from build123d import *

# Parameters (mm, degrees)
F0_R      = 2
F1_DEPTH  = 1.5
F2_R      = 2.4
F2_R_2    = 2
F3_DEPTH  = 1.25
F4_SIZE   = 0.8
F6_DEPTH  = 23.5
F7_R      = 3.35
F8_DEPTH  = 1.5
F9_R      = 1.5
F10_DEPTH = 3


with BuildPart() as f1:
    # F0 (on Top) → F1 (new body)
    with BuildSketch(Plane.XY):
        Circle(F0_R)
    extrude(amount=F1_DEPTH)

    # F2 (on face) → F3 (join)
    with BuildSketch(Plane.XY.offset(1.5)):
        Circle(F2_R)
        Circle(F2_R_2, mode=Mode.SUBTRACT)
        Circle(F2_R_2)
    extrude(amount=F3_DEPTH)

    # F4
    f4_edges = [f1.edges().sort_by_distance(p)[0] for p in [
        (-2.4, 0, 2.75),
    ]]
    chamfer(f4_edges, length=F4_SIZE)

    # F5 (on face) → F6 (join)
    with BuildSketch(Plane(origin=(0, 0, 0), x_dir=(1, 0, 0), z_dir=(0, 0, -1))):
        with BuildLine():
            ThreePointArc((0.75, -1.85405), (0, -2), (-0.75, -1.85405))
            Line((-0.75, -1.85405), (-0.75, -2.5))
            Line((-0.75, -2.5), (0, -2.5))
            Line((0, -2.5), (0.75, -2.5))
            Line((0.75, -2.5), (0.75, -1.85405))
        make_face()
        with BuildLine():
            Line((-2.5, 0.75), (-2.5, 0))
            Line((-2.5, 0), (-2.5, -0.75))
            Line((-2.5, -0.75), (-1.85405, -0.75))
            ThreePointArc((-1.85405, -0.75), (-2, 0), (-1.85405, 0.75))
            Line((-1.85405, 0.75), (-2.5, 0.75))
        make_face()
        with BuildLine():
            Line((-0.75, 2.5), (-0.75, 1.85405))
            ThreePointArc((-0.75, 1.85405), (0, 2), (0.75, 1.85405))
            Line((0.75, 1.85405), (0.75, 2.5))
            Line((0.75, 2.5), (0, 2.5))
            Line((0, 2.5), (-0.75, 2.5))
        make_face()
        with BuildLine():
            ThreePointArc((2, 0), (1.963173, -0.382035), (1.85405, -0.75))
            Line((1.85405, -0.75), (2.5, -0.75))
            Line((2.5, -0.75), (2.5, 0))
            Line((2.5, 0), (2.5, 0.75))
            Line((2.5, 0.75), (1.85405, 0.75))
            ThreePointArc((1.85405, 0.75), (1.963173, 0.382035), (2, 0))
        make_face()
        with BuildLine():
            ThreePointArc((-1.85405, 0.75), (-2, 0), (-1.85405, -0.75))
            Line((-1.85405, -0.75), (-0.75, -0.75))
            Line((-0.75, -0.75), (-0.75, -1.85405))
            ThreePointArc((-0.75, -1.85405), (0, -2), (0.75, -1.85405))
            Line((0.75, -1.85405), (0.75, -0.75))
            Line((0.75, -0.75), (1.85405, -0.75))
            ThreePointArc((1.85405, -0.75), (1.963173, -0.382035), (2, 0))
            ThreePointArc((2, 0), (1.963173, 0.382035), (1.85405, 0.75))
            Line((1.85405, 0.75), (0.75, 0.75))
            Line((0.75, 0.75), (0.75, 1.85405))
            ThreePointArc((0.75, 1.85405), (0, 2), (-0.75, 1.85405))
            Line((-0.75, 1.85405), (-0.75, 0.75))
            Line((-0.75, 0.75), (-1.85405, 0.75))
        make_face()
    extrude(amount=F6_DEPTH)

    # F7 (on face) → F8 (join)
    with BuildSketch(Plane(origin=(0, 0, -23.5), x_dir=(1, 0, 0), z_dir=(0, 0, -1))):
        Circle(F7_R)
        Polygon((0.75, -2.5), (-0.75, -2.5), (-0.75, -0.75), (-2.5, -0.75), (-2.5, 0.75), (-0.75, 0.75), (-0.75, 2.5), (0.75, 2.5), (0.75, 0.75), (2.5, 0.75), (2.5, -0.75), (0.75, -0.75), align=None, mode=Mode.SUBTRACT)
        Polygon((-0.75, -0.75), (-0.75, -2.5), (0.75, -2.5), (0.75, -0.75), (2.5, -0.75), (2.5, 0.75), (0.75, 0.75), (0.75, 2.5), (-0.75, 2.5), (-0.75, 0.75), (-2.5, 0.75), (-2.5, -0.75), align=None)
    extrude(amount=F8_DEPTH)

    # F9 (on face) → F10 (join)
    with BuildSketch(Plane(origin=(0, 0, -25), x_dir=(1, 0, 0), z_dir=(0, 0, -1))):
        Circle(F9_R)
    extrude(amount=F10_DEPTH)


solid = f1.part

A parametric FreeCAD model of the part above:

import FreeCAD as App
import Part
import Sketcher

V = App.Vector
Q = App.Units.Quantity


def edges_at(feature, points):
    """Names of the edges that pass closest to the given points."""
    edges = feature.Shape.Edges
    near = lambda p: min(range(len(edges)), key=lambda i: edges[i].distToShape(Part.Vertex(*p))[0])
    return sorted({f"Edge{near(p) + 1}" for p in points})


def add_polygon(sketch, points):
    """Adds a closed chain of lines whose ends are joined by coincident constraints."""
    first, n = sketch.GeometryCount, len(points)
    for a, b in zip(points, points[1:] + points[:1]):
        sketch.addGeometry(Part.LineSegment(App.Vector(*a, 0), App.Vector(*b, 0)), False)
    for i in range(n):
        sketch.addConstraint(Sketcher.Constraint("Coincident", first + i, 2, first + (i + 1) % n, 1))

doc = App.newDocument("Part")
body = doc.addObject("PartDesign::Body", "Body")

# Sketch on XY plane
sketch1 = body.newObject("Sketcher::SketchObject", "Sketch")
sketch1.AttachmentSupport = (doc.getObject("XY_Plane"), [""])
sketch1.MapMode = "FlatFace"
sketch1.addGeometry(Part.Circle(V(0, 0, 0), V(0, 0, 1), 2), False)
sketch1.addConstraint(Sketcher.Constraint("Coincident", 0, 3, -1, 1))
sketch1.addConstraint(Sketcher.Constraint("Diameter", 0, Q("4 mm")))
pad1 = body.newObject("PartDesign::Pad", "Pad")
pad1.Profile = sketch1
pad1.Length = 1.5

# Sketch on XY plane
sketch2 = body.newObject("Sketcher::SketchObject", "Sketch001")
sketch2.AttachmentSupport = (doc.getObject("XY_Plane"), [""])
sketch2.MapMode = "FlatFace"
sketch2.AttachmentOffset = App.Placement(V(0, 0, 1.5), App.Rotation())
sketch2.addGeometry(Part.Circle(V(0, 0, 0), V(0, 0, 1), 2.4), False)
sketch2.addConstraint(Sketcher.Constraint("Coincident", 0, 3, -1, 1))
sketch2.addConstraint(Sketcher.Constraint("Diameter", 0, Q("4.8 mm")))
pad2 = body.newObject("PartDesign::Pad", "Pad001")
pad2.Profile = sketch2
pad2.Length = 1.25
doc.recompute()

chamfer = body.newObject("PartDesign::Chamfer", "Chamfer")
chamfer.Base = (pad2, edges_at(pad2, [(-2.4, 0, 2.75)]))
chamfer.Size = 0.8

# Sketch on XY plane
sketch3 = body.newObject("Sketcher::SketchObject", "Sketch002")
sketch3.AttachmentSupport = (doc.getObject("XY_Plane"), [""])
sketch3.MapMode = "FlatFace"
add_polygon(sketch3, [(-0.75, 2.5), (0.75, 2.5), (0.75, 0.75), (2.5, 0.75), (2.5, -0.75), (0.75, -0.75), (0.75, -2.5), (-0.75, -2.5), (-0.75, -0.75), (-2.5, -0.75), (-2.5, 0.75), (-0.75, 0.75)])  # lines 0-11
sketch3.addConstraint(Sketcher.Constraint("Horizontal", 0))
sketch3.addConstraint(Sketcher.Constraint("Vertical", 1))
sketch3.addConstraint(Sketcher.Constraint("Horizontal", 2))
sketch3.addConstraint(Sketcher.Constraint("Vertical", 3))
sketch3.addConstraint(Sketcher.Constraint("Horizontal", 4))
sketch3.addConstraint(Sketcher.Constraint("Vertical", 5))
sketch3.addConstraint(Sketcher.Constraint("Horizontal", 6))
sketch3.addConstraint(Sketcher.Constraint("Vertical", 7))
sketch3.addConstraint(Sketcher.Constraint("Horizontal", 8))
sketch3.addConstraint(Sketcher.Constraint("Vertical", 9))
sketch3.addConstraint(Sketcher.Constraint("Horizontal", 10))
sketch3.addConstraint(Sketcher.Constraint("Vertical", 11))
sketch3.addConstraint(Sketcher.Constraint("Symmetric", 0, 2, 6, 2, -1, 1))
sketch3.addConstraint(Sketcher.Constraint("Symmetric", 2, 2, 8, 2, -1, 1))
sketch3.addConstraint(Sketcher.Constraint("Symmetric", 4, 2, 10, 2, -1, 1))
sketch3.addConstraint(Sketcher.Constraint("Symmetric", 4, 2, 7, 2, -2))
sketch3.addConstraint(Sketcher.Constraint("Equal", 10, 1))
sketch3.addConstraint(Sketcher.Constraint("Equal", 6, 3))
sketch3.addConstraint(Sketcher.Constraint("DistanceX", 0, 1, 0, 2, Q("1.5 mm")))
sketch3.addConstraint(Sketcher.Constraint("DistanceY", 5, 2, 0, 2, Q("5 mm")))
pad3 = body.newObject("PartDesign::Pad", "Pad002")
pad3.Profile = sketch3
pad3.Length = 23.5
pad3.Reversed = True

# Sketch on XY plane
sketch4 = body.newObject("Sketcher::SketchObject", "Sketch003")
sketch4.AttachmentSupport = (doc.getObject("XY_Plane"), [""])
sketch4.MapMode = "FlatFace"
sketch4.AttachmentOffset = App.Placement(V(0, 0, -23.5), App.Rotation())
sketch4.addGeometry(Part.Circle(V(0, 0, 0), V(0, 0, 1), 3.35), False)
sketch4.addConstraint(Sketcher.Constraint("Coincident", 0, 3, -1, 1))
sketch4.addConstraint(Sketcher.Constraint("Diameter", 0, Q("6.7 mm")))
pad4 = body.newObject("PartDesign::Pad", "Pad003")
pad4.Profile = sketch4
pad4.Length = 1.5
pad4.Reversed = True

# Sketch on XY plane
sketch5 = body.newObject("Sketcher::SketchObject", "Sketch004")
sketch5.AttachmentSupport = (doc.getObject("XY_Plane"), [""])
sketch5.MapMode = "FlatFace"
sketch5.AttachmentOffset = App.Placement(V(0, 0, -25), App.Rotation())
sketch5.addGeometry(Part.Circle(V(0, 0, 0), V(0, 0, 1), 1.5), False)
sketch5.addConstraint(Sketcher.Constraint("Coincident", 0, 3, -1, 1))
sketch5.addConstraint(Sketcher.Constraint("Diameter", 0, Q("3 mm")))
pad5 = body.newObject("PartDesign::Pad", "Pad004")
pad5.Profile = sketch5
pad5.Length = 3
pad5.Reversed = True

doc.recompute()
